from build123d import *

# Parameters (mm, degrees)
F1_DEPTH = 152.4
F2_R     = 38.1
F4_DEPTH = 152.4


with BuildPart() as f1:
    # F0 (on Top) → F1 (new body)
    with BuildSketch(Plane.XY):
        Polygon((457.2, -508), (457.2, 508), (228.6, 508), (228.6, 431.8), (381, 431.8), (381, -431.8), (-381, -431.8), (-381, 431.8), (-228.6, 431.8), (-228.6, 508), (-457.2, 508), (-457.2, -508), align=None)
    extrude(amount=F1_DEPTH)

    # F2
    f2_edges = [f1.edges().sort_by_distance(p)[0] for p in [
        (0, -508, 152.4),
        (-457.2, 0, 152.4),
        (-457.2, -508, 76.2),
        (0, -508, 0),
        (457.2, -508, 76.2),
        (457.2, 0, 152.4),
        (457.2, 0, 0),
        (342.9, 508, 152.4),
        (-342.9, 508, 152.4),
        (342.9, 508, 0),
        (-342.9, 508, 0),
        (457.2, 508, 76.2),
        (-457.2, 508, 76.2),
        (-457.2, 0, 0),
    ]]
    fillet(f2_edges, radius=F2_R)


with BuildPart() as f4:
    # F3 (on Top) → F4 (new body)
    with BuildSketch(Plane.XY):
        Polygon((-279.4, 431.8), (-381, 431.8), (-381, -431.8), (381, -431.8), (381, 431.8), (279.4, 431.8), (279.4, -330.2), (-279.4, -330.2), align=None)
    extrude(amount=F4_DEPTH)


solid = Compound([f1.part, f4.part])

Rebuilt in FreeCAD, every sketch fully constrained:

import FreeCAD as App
import Part
import Sketcher

V = App.Vector
Q = App.Units.Quantity


def edges_at(feature, points):
    """Names of the edges that pass closest to the given points."""
    edges = feature.Shape.Edges
    near = lambda p: min(range(len(edges)), key=lambda i: edges[i].distToShape(Part.Vertex(*p))[0])
    return sorted({f"Edge{near(p) + 1}" for p in points})

doc = App.newDocument("Part")
body = doc.addObject("PartDesign::Body", "Body")

# Sketch on XY plane
sketch1 = body.newObject("Sketcher::SketchObject", "Sketch")
sketch1.AttachmentSupport = (doc.getObject("XY_Plane"), [""])
sketch1.MapMode = "FlatFace"
sketch1.addGeometry(Part.LineSegment(V(457.2, -508, 0), V(457.2, 508, 0)), False)
sketch1.addGeometry(Part.LineSegment(V(457.2, 508, 0), V(228.6, 508, 0)), False)
sketch1.addGeometry(Part.LineSegment(V(228.6, 508, 0), V(228.6, 431.8, 0)), False)
sketch1.addGeometry(Part.LineSegment(V(228.6, 431.8, 0), V(381, 431.8, 0)), False)
sketch1.addGeometry(Part.LineSegment(V(381, 431.8, 0), V(381, -431.8, 0)), False)
sketch1.addGeometry(Part.LineSegment(V(381, -431.8, 0), V(-381, -431.8, 0)), False)
sketch1.addGeometry(Part.LineSegment(V(-381, -431.8, 0), V(-381, 431.8, 0)), False)
sketch1.addGeometry(Part.LineSegment(V(-381, 431.8, 0), V(-228.6, 431.8, 0)), False)
sketch1.addGeometry(Part.LineSegment(V(-228.6, 431.8, 0), V(-228.6, 508, 0)), False)
sketch1.addGeometry(Part.LineSegment(V(-228.6, 508, 0), V(-457.2, 508, 0)), False)
sketch1.addGeometry(Part.LineSegment(V(-457.2, 508, 0), V(-457.2, -508, 0)), False)
sketch1.addGeometry(Part.LineSegment(V(-457.2, -508, 0), V(457.2, -508, 0)), False)
sketch1.addConstraint(Sketcher.Constraint("Coincident", 0, 2, 1, 1))
sketch1.addConstraint(Sketcher.Constraint("Coincident", 1, 2, 2, 1))
sketch1.addConstraint(Sketcher.Constraint("Coincident", 2, 2, 3, 1))
sketch1.addConstraint(Sketcher.Constraint("Coincident", 3, 2, 4, 1))
sketch1.addConstraint(Sketcher.Constraint("Coincident", 4, 2, 5, 1))
sketch1.addConstraint(Sketcher.Constraint("Coincident", 5, 2, 6, 1))
sketch1.addConstraint(Sketcher.Constraint("Coincident", 6, 2, 7, 1))
sketch1.addConstraint(Sketcher.Constraint("Coincident", 7, 2, 8, 1))
sketch1.addConstraint(Sketcher.Constraint("Coincident", 8, 2, 9, 1))
sketch1.addConstraint(Sketcher.Constraint("Coincident", 9, 2, 10, 1))
sketch1.addConstraint(Sketcher.Constraint("Coincident", 10, 2, 11, 1))
sketch1.addConstraint(Sketcher.Constraint("Coincident", 11, 2, 0, 1))
sketch1.addConstraint(Sketcher.Constraint("Vertical", 0))
sketch1.addConstraint(Sketcher.Constraint("Horizontal", 1))
sketch1.addConstraint(Sketcher.Constraint("Vertical", 2))
sketch1.addConstraint(Sketcher.Constraint("Horizontal", 3))
sketch1.addConstraint(Sketcher.Constraint("Vertical", 4))
sketch1.addConstraint(Sketcher.Constraint("Horizontal", 5))
sketch1.addConstraint(Sketcher.Constraint("Vertical", 6))
sketch1.addConstraint(Sketcher.Constraint("Horizontal", 7))
sketch1.addConstraint(Sketcher.Constraint("Vertical", 8))
sketch1.addConstraint(Sketcher.Constraint("Horizontal", 9))
sketch1.addConstraint(Sketcher.Constraint("Vertical", 10))
sketch1.addConstraint(Sketcher.Constraint("Horizontal", 11))
sketch1.addConstraint(Sketcher.Constraint("Symmetric", 3, 2, 5, 2, -1, 1))
sketch1.addConstraint(Sketcher.Constraint("Symmetric", 0, 2, 10, 2, -1, 1))
sketch1.addConstraint(Sketcher.Constraint("Symmetric", 2, 2, 7, 2, -2))
sketch1.addConstraint(Sketcher.Constraint("Horizontal", 1, 2, 8, 2))
sketch1.addConstraint(Sketcher.Constraint("DistanceX", 1, 2, 1, 1, Q("9 in")))
sketch1.addConstraint(Sketcher.Constraint("DistanceX", 3, 1, 3, 2, Q("6 in")))
sketch1.addConstraint(Sketcher.Constraint("DistanceX", 5, 2, 5, 1, Q("30 in")))
sketch1.addConstraint(Sketcher.Constraint("DistanceY", 0, 1, 0, 2, Q("40 in")))
sketch1.addConstraint(Sketcher.Constraint("DistanceY", 2, 2, 2, 1, Q("3 in")))
pad1 = body.newObject("PartDesign::Pad", "Pad")
pad1.Profile = sketch1
pad1.Length = Q("6 in")
doc.recompute()

fillet = body.newObject("PartDesign::Fillet", "Fillet")
fillet.Base = (pad1, edges_at(pad1, [
    (0, -508, 152.4),
    (-457.2, 0, 152.4),
    (-457.2, -508, 76.2),
    (0, -508, 0),
    (457.2, -508, 76.2),
    (457.2, 0, 152.4),
    (457.2, 0, 0),
    (342.9, 508, 152.4),
    (-342.9, 508, 152.4),
    (342.9, 508, 0),
    (-342.9, 508, 0),
    (457.2, 508, 76.2),
    (-457.2, 508, 76.2),
    (-457.2, 0, 0),
]))
fillet.Radius = Q("1.5 in")
body2 = doc.addObject("PartDesign::Body", "Body001")

# Sketch on XY plane
sketch2 = body2.newObject("Sketcher::SketchObject", "Sketch001")
sketch2.AttachmentSupport = (doc.getObject("XY_Plane001"), [""])
sketch2.MapMode = "FlatFace"
sketch2.addGeometry(Part.LineSegment(V(-279.4, 431.8, 0), V(-381, 431.8, 0)), False)
sketch2.addGeometry(Part.LineSegment(V(-381, 431.8, 0), V(-381, -431.8, 0)), False)
sketch2.addGeometry(Part.LineSegment(V(-381, -431.8, 0), V(381, -431.8, 0)), False)
sketch2.addGeometry(Part.LineSegment(V(381, -431.8, 0), V(381, 431.8, 0)), False)
sketch2.addGeometry(Part.LineSegment(V(381, 431.8, 0), V(279.4, 431.8, 0)), False)
sketch2.addGeometry(Part.LineSegment(V(279.4, 431.8, 0), V(279.4, -330.2, 0)), False)
sketch2.addGeometry(Part.LineSegment(V(279.4, -330.2, 0), V(-279.4, -330.2, 0)), False)
sketch2.addGeometry(Part.LineSegment(V(-279.4, -330.2, 0), V(-279.4, 431.8, 0)), False)
sketch2.addConstraint(Sketcher.Constraint("Coincident", 0, 2, 1, 1))
sketch2.addConstraint(Sketcher.Constraint("Coincident", 1, 2, 2, 1))
sketch2.addConstraint(Sketcher.Constraint("Coincident", 2, 2, 3, 1))
sketch2.addConstraint(Sketcher.Constraint("Coincident", 3, 2, 4, 1))
sketch2.addConstraint(Sketcher.Constraint("Coincident", 4, 2, 5, 1))
sketch2.addConstraint(Sketcher.Constraint("Coincident", 5, 2, 6, 1))
sketch2.addConstraint(Sketcher.Constraint("Coincident", 6, 2, 7, 1))
sketch2.addConstraint(Sketcher.Constraint("Coincident", 7, 2, 0, 1))
sketch2.addConstraint(Sketcher.Constraint("Horizontal", 0))
sketch2.addConstraint(Sketcher.Constraint("Vertical", 1))
sketch2.addConstraint(Sketcher.Constraint("Horizontal", 2))
sketch2.addConstraint(Sketcher.Constraint("Vertical", 3))
sketch2.addConstraint(Sketcher.Constraint("Horizontal", 4))
sketch2.addConstraint(Sketcher.Constraint("Vertical", 5))
sketch2.addConstraint(Sketcher.Constraint("Horizontal", 6))
sketch2.addConstraint(Sketcher.Constraint("Vertical", 7))
sketch2.addConstraint(Sketcher.Constraint("Symmetric", 0, 2, 2, 2, -1, 1))
sketch2.addConstraint(Sketcher.Constraint("Symmetric", 4, 2, 7, 2, -2))
sketch2.addConstraint(Sketcher.Constraint("Equal", 2, 5))
sketch2.addConstraint(Sketcher.Constraint("DistanceX", 0, 2, 0, 1, Q("4 in")))
sketch2.addConstraint(Sketcher.Constraint("DistanceX", 2, 1, 2, 2, Q("30 in")))
sketch2.addConstraint(Sketcher.Constraint("DistanceY", 1, 2, 1, 1, Q("34 in")))
pad2 = body2.newObject("PartDesign::Pad", "Pad001")
pad2.Profile = sketch2
pad2.Length = Q("6 in")

doc.recompute()
